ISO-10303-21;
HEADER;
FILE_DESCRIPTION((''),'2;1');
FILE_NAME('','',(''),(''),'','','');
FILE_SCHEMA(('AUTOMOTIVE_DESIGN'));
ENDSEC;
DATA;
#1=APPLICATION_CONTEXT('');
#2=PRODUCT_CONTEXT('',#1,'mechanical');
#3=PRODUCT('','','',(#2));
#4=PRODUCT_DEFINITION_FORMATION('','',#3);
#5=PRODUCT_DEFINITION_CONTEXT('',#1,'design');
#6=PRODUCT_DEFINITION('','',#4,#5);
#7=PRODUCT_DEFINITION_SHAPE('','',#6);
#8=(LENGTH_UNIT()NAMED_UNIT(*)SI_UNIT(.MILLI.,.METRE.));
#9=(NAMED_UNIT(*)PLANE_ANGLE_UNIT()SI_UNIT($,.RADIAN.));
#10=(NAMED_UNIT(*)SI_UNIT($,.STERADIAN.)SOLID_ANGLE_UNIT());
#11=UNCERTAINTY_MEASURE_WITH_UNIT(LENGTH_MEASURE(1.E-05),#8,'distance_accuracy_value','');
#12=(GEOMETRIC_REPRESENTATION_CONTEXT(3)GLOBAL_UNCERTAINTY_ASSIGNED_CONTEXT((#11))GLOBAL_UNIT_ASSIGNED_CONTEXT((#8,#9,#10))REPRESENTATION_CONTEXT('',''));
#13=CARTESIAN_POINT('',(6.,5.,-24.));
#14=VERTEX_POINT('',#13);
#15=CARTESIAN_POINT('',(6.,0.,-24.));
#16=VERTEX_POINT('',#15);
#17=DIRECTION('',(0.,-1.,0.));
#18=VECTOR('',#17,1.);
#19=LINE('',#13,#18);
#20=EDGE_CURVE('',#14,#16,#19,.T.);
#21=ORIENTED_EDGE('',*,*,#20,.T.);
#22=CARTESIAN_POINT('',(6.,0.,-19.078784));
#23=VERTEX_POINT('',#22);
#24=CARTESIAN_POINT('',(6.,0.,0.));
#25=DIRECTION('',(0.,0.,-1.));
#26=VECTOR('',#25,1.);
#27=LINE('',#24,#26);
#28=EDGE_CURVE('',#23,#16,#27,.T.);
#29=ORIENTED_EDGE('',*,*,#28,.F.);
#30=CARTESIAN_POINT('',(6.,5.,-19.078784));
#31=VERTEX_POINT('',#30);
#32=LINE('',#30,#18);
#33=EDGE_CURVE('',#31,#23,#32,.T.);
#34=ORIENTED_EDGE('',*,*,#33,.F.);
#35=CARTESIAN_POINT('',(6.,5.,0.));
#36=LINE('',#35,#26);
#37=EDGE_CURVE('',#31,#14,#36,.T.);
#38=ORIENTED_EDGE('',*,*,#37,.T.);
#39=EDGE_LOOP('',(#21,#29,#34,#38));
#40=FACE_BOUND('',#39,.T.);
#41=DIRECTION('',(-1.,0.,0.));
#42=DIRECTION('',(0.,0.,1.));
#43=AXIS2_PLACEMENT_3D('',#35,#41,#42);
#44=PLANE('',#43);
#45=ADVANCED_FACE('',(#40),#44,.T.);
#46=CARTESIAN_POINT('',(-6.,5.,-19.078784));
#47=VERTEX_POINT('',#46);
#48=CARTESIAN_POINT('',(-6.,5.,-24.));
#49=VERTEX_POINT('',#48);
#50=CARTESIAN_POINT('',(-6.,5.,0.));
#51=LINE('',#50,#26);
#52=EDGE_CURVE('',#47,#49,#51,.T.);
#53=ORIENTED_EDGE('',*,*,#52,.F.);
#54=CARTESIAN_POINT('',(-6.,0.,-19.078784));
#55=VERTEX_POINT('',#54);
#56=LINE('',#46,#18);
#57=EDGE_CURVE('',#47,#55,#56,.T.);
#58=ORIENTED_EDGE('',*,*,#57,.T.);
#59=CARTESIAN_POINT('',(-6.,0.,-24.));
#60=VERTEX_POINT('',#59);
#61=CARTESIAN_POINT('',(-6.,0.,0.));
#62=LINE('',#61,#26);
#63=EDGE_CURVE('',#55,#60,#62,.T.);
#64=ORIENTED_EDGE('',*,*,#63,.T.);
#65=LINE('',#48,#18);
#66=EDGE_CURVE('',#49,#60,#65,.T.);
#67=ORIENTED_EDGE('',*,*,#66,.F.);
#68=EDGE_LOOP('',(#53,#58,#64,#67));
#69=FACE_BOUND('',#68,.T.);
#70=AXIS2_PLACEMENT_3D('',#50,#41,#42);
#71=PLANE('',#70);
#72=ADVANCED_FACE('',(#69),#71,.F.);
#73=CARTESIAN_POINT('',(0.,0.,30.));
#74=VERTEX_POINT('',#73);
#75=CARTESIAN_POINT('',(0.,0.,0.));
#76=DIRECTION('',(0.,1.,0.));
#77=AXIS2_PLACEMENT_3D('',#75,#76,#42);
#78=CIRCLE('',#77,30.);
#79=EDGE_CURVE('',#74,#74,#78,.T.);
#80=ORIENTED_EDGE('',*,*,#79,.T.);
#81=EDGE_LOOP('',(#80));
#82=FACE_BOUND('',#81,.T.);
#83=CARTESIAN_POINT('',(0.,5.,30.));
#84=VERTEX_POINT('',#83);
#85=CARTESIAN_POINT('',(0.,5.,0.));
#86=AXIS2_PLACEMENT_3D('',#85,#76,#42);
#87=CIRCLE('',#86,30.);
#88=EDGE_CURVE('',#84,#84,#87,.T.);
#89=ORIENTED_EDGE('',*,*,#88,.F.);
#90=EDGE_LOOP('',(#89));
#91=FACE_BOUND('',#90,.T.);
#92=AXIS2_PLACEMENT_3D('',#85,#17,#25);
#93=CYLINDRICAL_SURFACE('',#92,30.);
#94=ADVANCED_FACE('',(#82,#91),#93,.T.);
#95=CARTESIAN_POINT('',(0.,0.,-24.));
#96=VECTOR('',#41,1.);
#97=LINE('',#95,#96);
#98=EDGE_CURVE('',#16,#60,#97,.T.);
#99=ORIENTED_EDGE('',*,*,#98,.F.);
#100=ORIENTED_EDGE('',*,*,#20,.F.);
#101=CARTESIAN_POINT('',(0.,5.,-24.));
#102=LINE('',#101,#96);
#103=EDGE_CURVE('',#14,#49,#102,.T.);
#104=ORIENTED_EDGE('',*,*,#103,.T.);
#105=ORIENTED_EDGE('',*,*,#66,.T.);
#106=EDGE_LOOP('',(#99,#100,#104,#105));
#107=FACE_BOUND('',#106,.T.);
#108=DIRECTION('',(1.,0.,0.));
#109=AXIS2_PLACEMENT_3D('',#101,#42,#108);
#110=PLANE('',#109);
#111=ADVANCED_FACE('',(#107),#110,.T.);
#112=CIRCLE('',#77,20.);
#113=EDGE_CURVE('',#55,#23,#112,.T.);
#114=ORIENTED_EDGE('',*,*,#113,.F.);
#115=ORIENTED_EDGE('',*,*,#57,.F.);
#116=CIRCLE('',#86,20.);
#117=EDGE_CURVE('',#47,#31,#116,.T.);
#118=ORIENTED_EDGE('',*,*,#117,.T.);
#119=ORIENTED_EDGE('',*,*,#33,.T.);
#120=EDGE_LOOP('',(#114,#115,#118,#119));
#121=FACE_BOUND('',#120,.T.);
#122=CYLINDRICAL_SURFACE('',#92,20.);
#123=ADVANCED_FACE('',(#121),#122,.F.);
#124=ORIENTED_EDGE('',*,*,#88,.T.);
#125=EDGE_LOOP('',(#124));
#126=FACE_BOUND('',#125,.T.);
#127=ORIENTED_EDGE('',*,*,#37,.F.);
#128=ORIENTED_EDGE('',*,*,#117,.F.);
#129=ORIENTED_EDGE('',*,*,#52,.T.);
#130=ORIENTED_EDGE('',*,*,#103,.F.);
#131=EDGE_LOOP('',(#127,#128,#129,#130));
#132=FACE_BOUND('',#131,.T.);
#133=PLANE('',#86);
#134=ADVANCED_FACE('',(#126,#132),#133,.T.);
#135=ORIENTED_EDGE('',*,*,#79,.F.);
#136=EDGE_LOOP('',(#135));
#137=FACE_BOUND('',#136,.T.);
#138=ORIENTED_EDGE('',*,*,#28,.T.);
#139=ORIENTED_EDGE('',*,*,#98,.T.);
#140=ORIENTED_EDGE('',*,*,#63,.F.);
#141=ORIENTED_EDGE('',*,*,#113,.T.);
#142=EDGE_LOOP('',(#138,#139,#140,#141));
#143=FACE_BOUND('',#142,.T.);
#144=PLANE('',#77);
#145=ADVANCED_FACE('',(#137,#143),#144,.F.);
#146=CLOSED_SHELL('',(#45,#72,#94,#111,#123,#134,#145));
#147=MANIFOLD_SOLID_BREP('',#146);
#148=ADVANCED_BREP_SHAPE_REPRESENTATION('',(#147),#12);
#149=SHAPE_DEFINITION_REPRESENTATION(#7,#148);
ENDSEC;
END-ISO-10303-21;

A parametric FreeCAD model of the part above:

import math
import FreeCAD as App
import Part
import Sketcher

V = App.Vector
Q = App.Units.Quantity

doc = App.newDocument("Part")
body = doc.addObject("PartDesign::Body", "Body")

sketch1 = body.newObject("Sketcher::SketchObject", "Sketch")
sketch1.AttachmentSupport = (doc.getObject("XZ_Plane"), [""])
sketch1.MapMode = "FlatFace"
sketch1.addGeometry(Part.Circle(V(0, 0, 0), V(0, 0, 1), 30), False)
sketch1.addConstraint(Sketcher.Constraint("Coincident", 0, 3, -1, 1))
sketch1.addConstraint(Sketcher.Constraint("Diameter", 0, Q("60 mm")))
pad1 = body.newObject("PartDesign::Pad", "Pad")
pad1.Profile = sketch1
pad1.Length = 5
pad1.Reversed = True

sketch2 = body.newObject("Sketcher::SketchObject", "Sketch001")
sketch2.AttachmentSupport = (doc.getObject("XZ_Plane"), [""])
sketch2.MapMode = "FlatFace"
sketch2.addGeometry(Part.Circle(V(0, 0, 0), V(0, 0, 1), 20), False)
sketch2.addConstraint(Sketcher.Constraint("Coincident", 0, 3, -1, 1))
sketch2.addConstraint(Sketcher.Constraint("Diameter", 0, Q("40 mm")))
pocket1 = body.newObject("PartDesign::Pocket", "Pocket")
pocket1.Profile = sketch2
pocket1.Length = 5

sketch3 = body.newObject("Sketcher::SketchObject", "Sketch002")
sketch3.AttachmentSupport = (doc.getObject("XZ_Plane"), [""])
sketch3.MapMode = "FlatFace"
sketch3.addGeometry(Part.ArcOfCircle(Part.Circle(V(0, 0, 0), V(0, 0, 1), 20), math.radians(-107.457603), math.radians(-72.542397)), False)
sketch3.addGeometry(Part.LineSegment(V(6, -19.078784, 0), V(6, -24, 0)), False)
sketch3.addGeometry(Part.LineSegment(V(6, -24, 0), V(-6, -24, 0)), False)
sketch3.addGeometry(Part.LineSegment(V(-6, -24, 0), V(-6, -19.078784, 0)), False)
sketch3.addConstraint(Sketcher.Constraint("Coincident", 0, 2, 1, 1))
sketch3.addConstraint(Sketcher.Constraint("Coincident", 1, 2, 2, 1))
sketch3.addConstraint(Sketcher.Constraint("Coincident", 2, 2, 3, 1))
sketch3.addConstraint(Sketcher.Constraint("Coincident", 3, 2, 0, 1))
sketch3.addConstraint(Sketcher.Constraint("Vertical", 1))
sketch3.addConstraint(Sketcher.Constraint("Horizontal", 2))
sketch3.addConstraint(Sketcher.Constraint("Vertical", 3))
sketch3.addConstraint(Sketcher.Constraint("Coincident", 0, 3, -1, 1))
sketch3.addConstraint(Sketcher.Constraint("Horizontal", 0, 2, 3, 2))
sketch3.addConstraint(Sketcher.Constraint("Radius", 0, Q("20 mm")))
sketch3.addConstraint(Sketcher.Constraint("DistanceX", 2, 2, 2, 1, Q("12 mm")))
sketch3.addConstraint(Sketcher.Constraint("DistanceY", 1, 2, -1, 1, Q("24 mm")))
pocket2 = body.newObject("PartDesign::Pocket", "Pocket001")
pocket2.Profile = sketch3
pocket2.Length = 5

doc.recompute()
